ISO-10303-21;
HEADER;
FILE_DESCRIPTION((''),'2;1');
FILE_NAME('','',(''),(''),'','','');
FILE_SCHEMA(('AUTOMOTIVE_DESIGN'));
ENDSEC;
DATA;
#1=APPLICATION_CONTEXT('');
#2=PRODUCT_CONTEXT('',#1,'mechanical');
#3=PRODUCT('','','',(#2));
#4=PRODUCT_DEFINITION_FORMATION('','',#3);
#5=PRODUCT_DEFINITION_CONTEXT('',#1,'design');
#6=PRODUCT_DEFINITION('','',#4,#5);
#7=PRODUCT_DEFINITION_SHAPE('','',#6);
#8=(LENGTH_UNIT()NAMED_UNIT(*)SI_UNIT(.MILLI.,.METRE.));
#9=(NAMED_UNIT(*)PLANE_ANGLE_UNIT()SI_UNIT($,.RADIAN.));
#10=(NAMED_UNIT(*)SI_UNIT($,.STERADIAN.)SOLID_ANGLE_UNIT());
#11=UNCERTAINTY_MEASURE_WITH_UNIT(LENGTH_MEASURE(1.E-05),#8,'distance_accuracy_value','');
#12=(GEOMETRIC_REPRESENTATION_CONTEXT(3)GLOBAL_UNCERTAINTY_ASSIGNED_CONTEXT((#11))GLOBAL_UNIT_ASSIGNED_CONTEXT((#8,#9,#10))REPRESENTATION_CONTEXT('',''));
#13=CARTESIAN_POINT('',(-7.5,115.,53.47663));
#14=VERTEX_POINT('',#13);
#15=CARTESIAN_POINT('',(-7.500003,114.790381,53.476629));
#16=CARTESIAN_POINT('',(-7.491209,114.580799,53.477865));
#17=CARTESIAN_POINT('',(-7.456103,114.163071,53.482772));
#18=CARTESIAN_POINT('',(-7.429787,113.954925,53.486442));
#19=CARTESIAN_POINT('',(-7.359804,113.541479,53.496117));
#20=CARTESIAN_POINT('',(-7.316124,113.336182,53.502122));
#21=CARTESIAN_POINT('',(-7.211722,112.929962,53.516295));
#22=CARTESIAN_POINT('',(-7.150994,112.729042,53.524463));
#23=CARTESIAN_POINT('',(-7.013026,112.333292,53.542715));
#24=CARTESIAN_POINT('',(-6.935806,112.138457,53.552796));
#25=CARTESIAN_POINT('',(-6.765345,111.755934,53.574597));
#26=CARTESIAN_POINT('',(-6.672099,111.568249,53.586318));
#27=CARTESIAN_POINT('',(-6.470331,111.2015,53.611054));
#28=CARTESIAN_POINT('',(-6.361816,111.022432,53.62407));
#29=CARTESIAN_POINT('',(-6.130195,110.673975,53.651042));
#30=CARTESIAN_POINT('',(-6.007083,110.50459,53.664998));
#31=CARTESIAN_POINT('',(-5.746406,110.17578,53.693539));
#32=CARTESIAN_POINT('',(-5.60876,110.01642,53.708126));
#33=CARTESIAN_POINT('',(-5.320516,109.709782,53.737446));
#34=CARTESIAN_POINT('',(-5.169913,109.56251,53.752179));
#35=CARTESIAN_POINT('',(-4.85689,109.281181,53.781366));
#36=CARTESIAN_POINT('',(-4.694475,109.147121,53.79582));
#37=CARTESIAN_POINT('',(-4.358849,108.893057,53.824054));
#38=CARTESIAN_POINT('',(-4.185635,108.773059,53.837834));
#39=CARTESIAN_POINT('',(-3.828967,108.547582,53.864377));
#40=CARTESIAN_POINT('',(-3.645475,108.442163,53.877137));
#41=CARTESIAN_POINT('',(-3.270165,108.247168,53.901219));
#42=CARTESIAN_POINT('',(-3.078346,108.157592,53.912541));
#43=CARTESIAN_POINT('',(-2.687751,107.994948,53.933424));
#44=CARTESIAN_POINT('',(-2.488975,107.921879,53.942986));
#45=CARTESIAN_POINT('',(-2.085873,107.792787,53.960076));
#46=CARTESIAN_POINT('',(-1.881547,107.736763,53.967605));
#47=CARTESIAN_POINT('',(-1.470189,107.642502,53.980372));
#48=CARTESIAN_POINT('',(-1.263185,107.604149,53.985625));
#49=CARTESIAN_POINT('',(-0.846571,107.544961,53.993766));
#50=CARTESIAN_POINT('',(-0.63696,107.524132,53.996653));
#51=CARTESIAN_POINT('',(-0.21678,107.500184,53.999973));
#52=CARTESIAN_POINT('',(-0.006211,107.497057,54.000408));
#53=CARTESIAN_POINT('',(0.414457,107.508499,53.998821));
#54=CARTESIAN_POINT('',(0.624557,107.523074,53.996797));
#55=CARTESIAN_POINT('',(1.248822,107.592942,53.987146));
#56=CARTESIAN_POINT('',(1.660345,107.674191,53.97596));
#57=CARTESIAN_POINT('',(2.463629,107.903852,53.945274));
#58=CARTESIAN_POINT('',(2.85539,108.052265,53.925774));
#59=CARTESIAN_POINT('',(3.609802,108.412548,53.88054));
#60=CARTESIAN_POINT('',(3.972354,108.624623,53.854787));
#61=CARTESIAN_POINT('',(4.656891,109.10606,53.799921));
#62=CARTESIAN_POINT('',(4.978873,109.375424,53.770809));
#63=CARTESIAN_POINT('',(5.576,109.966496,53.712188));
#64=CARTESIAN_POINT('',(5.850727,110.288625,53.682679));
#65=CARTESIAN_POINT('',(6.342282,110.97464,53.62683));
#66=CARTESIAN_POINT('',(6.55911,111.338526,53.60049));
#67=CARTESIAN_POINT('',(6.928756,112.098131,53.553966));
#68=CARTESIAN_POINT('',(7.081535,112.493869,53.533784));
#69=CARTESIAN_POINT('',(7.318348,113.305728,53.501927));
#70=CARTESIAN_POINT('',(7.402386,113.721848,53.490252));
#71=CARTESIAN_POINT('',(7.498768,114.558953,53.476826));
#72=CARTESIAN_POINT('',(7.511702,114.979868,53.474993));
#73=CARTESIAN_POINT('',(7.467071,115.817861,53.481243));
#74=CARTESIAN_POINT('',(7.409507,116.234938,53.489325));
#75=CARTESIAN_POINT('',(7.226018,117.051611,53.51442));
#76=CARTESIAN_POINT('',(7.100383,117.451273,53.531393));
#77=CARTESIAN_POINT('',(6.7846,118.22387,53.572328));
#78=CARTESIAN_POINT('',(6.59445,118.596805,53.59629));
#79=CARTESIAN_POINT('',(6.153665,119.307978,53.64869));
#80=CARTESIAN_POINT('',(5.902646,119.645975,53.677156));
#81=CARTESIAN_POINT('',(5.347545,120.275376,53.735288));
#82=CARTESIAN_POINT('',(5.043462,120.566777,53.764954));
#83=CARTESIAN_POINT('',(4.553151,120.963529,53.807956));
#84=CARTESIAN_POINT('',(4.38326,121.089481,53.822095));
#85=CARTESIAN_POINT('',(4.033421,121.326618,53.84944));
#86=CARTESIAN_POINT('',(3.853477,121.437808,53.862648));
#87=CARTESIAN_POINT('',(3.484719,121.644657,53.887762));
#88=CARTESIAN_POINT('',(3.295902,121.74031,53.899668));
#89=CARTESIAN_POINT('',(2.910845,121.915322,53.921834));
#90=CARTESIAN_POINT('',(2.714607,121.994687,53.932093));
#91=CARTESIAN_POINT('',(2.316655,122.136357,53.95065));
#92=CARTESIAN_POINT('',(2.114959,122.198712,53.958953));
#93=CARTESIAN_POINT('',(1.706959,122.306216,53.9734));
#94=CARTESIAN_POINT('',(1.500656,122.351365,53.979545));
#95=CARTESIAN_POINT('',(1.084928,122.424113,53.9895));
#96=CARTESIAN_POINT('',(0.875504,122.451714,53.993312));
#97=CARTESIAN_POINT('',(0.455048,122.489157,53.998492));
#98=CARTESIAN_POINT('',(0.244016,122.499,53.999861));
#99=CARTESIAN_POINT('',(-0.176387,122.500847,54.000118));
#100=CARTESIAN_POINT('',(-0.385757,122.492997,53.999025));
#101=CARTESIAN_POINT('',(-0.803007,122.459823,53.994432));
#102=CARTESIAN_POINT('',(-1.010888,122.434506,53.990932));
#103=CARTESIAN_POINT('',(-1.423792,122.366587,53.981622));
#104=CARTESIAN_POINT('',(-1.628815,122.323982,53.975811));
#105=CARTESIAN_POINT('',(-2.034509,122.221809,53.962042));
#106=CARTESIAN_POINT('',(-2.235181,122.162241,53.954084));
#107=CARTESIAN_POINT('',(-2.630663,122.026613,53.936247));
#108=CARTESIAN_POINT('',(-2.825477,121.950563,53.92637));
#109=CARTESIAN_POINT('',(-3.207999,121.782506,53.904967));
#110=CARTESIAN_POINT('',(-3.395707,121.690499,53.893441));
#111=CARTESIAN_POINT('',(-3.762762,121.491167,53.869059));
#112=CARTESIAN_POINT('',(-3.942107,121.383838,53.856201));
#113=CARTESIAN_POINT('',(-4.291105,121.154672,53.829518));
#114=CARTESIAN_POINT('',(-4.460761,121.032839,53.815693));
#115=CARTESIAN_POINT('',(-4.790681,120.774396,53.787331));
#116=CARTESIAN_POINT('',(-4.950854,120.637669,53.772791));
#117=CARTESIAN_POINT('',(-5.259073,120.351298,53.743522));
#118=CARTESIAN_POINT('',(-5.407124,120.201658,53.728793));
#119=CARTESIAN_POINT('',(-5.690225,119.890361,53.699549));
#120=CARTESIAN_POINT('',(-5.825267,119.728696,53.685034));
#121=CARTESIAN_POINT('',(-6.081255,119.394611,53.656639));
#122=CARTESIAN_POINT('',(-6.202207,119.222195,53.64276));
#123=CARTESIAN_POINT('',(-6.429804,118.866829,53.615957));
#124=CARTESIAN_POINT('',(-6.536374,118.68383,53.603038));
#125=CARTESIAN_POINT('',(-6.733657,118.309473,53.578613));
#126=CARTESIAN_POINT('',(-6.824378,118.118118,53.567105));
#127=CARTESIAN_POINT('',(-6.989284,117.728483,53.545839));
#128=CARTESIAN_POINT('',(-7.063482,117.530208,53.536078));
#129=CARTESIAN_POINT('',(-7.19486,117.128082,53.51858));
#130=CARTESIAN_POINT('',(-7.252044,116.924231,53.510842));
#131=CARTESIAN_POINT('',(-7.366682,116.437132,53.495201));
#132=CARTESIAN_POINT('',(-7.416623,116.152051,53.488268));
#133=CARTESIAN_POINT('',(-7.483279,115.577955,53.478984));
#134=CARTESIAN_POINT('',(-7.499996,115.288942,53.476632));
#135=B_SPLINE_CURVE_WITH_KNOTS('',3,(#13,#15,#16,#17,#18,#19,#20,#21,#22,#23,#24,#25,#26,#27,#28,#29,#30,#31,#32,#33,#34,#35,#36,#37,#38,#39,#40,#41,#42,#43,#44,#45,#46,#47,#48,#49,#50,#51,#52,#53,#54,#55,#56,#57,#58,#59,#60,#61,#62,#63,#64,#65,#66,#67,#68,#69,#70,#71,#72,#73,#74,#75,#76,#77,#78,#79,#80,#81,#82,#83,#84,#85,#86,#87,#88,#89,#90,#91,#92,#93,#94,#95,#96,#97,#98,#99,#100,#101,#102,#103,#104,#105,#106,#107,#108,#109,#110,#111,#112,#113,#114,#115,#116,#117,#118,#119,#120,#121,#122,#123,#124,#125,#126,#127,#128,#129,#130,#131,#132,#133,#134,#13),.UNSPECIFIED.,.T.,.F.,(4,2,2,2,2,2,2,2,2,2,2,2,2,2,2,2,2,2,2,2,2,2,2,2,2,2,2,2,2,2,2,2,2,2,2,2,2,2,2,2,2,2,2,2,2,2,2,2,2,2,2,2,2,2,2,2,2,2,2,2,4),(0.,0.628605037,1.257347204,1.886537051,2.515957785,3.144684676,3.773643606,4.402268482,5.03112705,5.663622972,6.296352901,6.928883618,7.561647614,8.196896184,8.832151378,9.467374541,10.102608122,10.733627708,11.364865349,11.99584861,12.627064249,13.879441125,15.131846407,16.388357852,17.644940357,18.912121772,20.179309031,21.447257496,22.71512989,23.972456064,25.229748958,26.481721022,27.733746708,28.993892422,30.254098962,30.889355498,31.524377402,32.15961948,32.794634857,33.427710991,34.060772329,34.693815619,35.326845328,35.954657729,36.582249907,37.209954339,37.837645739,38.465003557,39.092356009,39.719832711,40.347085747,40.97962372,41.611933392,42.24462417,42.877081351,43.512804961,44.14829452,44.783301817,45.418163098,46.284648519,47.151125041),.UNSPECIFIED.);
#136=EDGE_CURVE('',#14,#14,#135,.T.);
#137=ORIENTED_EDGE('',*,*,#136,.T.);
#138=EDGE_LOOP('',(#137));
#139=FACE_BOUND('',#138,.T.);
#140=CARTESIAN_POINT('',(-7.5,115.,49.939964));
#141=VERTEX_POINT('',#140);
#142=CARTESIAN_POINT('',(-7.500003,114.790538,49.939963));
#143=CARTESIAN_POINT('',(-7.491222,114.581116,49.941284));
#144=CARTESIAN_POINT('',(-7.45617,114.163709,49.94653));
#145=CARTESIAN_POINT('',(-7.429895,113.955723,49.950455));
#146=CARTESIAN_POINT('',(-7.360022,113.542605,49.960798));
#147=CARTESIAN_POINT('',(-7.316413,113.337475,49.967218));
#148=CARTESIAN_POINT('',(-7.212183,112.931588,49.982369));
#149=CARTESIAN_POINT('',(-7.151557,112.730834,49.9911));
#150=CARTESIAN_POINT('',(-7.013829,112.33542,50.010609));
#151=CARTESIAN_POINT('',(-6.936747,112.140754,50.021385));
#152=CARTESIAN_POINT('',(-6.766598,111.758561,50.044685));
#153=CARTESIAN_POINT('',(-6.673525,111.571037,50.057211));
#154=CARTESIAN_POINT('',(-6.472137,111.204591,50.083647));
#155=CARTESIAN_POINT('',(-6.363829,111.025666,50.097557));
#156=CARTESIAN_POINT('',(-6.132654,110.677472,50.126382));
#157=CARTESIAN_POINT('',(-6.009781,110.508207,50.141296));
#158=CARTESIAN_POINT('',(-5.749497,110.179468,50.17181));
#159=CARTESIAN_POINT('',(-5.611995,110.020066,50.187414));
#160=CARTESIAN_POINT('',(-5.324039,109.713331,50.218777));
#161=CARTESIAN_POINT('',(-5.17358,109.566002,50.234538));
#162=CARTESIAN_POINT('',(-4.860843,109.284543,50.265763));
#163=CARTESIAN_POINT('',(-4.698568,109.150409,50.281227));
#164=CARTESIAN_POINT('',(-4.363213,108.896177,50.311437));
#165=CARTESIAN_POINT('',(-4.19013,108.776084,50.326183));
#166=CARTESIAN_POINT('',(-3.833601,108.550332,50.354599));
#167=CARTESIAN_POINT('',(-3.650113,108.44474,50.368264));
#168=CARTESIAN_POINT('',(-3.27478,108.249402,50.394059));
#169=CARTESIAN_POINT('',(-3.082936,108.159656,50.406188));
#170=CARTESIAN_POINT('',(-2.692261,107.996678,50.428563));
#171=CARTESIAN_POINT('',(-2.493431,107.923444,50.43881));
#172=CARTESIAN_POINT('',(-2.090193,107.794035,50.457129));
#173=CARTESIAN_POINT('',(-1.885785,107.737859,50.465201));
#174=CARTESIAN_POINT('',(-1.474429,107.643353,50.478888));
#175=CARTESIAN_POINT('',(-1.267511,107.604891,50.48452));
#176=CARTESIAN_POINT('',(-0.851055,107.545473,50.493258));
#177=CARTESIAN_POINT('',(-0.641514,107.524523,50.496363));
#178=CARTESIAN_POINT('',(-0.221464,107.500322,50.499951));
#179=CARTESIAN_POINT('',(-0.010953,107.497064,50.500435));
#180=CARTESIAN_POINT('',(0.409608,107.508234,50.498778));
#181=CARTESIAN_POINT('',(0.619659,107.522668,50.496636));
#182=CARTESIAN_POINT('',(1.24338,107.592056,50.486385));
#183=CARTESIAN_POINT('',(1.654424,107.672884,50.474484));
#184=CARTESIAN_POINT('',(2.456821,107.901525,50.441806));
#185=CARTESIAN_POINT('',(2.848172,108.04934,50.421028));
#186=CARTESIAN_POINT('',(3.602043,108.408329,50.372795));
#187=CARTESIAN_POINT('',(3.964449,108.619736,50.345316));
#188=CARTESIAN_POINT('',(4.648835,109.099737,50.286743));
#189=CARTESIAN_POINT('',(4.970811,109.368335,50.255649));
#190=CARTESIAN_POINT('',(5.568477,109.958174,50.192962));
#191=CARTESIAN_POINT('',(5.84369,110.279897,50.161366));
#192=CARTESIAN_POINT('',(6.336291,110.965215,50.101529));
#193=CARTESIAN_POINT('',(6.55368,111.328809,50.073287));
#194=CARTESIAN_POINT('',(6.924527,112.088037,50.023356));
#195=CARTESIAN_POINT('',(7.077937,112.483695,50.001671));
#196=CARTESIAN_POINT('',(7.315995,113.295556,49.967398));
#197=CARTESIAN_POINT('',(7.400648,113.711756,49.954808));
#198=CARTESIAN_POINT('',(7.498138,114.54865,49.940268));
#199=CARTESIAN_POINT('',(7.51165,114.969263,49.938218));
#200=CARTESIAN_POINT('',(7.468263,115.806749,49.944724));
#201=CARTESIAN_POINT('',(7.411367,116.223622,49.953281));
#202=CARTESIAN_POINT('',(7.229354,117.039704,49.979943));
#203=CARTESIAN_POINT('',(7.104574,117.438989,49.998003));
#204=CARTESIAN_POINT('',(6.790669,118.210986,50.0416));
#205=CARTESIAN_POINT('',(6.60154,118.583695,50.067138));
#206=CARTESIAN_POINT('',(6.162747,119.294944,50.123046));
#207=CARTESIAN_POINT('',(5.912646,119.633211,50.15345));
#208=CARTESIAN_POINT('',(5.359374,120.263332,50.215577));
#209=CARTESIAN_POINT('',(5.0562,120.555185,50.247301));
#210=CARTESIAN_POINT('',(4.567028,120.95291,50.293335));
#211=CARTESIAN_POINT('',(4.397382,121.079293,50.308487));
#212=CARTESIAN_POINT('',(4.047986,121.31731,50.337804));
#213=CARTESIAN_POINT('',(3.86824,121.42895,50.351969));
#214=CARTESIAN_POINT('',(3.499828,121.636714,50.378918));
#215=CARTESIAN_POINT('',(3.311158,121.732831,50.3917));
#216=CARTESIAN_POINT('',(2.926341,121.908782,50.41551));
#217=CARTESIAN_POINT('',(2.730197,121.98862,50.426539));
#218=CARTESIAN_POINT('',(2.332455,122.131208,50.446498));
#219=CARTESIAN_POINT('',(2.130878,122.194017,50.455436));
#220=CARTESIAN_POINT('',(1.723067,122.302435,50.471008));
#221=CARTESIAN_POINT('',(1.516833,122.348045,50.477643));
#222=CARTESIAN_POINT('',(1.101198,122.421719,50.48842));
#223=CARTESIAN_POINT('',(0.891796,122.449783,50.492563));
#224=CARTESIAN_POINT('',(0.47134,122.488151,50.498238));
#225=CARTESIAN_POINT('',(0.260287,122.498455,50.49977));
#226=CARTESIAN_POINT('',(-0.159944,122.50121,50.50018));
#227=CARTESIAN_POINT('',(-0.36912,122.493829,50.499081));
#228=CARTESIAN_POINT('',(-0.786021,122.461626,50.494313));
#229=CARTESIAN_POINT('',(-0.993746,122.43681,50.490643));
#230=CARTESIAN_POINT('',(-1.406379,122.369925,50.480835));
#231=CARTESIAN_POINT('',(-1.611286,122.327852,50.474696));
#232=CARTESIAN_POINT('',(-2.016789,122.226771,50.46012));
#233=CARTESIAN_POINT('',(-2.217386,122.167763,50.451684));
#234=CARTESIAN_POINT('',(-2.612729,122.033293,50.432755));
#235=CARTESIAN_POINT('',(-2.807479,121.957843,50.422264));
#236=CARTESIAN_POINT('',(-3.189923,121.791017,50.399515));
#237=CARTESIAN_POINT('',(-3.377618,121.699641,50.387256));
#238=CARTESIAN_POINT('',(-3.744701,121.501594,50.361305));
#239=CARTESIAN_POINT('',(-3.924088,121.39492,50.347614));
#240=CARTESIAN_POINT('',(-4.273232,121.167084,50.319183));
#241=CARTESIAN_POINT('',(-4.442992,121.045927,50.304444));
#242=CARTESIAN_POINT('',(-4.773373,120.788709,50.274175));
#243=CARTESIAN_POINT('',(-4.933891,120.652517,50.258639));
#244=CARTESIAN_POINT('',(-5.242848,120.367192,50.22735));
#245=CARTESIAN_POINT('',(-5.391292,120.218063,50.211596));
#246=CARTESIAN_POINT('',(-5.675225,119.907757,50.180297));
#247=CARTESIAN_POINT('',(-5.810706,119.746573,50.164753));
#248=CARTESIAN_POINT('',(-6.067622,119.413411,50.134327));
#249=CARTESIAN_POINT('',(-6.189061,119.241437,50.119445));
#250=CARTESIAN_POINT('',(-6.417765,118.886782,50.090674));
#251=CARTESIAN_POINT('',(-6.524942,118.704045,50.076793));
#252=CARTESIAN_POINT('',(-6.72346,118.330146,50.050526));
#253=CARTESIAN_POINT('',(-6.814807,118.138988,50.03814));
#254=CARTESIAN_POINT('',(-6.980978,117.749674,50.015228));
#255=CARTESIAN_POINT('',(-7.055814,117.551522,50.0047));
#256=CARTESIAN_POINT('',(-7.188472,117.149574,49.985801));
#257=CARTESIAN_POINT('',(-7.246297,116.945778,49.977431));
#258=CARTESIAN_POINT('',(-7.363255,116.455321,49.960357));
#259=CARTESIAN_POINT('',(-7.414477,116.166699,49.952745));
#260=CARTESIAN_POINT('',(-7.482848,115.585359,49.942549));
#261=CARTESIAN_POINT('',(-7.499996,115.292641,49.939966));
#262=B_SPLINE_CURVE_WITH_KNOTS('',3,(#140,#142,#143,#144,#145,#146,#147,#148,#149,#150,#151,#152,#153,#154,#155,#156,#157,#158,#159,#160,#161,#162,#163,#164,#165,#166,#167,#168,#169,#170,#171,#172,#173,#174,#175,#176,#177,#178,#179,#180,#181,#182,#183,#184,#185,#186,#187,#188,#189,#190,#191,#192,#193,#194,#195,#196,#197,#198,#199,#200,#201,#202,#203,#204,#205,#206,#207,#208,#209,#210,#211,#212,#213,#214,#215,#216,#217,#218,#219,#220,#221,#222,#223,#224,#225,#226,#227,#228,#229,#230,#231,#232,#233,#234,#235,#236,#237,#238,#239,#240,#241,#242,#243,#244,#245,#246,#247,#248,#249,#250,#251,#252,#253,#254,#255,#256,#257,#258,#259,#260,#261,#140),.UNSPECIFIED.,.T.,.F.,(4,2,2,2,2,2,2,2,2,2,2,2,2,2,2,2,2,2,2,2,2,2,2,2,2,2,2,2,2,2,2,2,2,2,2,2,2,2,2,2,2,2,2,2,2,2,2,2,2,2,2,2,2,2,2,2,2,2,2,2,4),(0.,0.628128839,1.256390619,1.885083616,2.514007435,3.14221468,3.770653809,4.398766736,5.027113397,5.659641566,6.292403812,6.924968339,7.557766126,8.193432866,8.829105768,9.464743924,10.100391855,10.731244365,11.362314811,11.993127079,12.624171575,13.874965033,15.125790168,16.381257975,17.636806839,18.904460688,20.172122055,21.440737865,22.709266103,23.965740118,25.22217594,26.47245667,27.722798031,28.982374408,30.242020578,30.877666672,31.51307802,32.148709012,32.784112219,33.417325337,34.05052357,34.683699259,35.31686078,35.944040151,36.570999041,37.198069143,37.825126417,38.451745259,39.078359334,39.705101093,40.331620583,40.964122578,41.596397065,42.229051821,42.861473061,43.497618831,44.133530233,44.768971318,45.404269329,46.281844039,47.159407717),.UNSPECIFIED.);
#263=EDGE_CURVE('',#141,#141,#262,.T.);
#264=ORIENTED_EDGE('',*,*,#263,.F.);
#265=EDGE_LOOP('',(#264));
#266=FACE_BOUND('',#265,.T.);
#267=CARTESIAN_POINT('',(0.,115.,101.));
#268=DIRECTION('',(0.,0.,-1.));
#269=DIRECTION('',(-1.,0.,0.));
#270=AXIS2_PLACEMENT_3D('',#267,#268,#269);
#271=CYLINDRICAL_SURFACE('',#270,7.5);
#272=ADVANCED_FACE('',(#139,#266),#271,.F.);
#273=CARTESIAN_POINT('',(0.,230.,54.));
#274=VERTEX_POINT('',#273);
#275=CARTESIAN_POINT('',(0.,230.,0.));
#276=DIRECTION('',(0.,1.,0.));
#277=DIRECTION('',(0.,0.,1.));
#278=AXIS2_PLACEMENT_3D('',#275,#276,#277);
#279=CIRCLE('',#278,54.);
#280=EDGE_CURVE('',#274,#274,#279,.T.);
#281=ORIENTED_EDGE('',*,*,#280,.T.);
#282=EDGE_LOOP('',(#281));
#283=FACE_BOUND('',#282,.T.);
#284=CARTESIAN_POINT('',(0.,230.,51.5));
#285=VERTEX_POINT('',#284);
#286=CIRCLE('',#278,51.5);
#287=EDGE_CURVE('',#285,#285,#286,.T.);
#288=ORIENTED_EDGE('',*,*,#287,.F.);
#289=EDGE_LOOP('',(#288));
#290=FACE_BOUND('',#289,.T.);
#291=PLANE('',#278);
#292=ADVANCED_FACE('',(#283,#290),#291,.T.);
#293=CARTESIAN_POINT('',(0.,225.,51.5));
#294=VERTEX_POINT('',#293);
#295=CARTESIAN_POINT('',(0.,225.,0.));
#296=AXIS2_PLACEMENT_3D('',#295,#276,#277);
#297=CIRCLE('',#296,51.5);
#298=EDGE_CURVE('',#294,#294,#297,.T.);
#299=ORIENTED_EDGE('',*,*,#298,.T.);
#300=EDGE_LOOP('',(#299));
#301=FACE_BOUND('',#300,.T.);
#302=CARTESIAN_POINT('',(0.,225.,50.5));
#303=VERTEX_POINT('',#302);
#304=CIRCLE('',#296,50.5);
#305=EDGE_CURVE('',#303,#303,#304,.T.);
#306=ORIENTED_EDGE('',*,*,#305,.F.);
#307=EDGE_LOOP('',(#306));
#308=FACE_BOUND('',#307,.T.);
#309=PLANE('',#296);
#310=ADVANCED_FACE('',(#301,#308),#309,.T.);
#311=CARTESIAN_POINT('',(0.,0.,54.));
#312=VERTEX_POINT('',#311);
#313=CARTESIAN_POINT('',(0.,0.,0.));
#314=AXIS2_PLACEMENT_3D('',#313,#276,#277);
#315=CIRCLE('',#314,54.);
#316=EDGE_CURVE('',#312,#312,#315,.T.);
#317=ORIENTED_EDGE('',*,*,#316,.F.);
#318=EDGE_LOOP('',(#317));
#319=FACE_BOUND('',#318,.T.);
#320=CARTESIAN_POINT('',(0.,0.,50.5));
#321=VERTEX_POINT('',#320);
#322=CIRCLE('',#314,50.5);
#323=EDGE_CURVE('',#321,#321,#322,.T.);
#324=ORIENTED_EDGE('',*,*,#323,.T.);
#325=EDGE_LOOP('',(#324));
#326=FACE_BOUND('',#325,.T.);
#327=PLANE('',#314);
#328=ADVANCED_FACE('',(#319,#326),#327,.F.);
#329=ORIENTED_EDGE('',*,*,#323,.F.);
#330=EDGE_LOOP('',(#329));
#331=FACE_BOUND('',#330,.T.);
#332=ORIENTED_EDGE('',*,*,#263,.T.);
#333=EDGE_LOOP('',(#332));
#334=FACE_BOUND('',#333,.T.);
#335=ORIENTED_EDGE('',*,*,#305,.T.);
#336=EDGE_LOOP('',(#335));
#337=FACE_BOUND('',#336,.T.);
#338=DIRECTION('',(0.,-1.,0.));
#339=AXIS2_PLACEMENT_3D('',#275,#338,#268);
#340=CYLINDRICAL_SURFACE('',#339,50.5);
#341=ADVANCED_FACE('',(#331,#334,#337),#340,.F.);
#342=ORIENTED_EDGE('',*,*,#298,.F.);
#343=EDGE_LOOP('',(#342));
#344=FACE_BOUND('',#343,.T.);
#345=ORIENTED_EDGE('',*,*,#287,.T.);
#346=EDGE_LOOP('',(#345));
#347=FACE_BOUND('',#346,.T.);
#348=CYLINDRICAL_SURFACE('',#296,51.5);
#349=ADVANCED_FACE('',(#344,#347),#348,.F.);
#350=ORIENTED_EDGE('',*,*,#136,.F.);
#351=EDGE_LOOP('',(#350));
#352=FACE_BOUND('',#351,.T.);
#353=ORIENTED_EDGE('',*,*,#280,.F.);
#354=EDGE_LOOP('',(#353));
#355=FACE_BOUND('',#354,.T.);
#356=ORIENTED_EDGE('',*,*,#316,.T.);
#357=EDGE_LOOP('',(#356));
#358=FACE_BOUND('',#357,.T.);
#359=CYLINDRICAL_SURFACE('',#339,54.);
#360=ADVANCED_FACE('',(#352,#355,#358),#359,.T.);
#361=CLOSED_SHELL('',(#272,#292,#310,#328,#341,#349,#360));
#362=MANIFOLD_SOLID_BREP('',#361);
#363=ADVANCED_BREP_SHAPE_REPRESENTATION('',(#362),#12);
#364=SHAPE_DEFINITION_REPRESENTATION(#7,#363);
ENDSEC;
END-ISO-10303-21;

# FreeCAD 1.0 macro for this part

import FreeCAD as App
import Part
import Sketcher
from FreeCAD import Vector
Q = App.Units.Quantity

doc = App.newDocument("Part")
body = doc.addObject("PartDesign::Body", "Body")

sketch1 = body.newObject("Sketcher::SketchObject", "Sketch")
sketch1.AttachmentSupport = (doc.getObject("XZ_Plane"), [""])
sketch1.MapMode = "FlatFace"
sketch1.addGeometry(Part.Circle(Vector(0, 0, 0), Vector(0, 0, 1), 54), False)
sketch1.addGeometry(Part.Circle(Vector(0, 0, 0), Vector(0, 0, 1), 50.5), False)
sketch1.addConstraint(Sketcher.Constraint("Coincident", 0, 3, -1, 1))
sketch1.addConstraint(Sketcher.Constraint("Coincident", 1, 3, -1, 1))
sketch1.addConstraint(Sketcher.Constraint("Diameter", 0, Q("108 mm")))
sketch1.addConstraint(Sketcher.Constraint("Diameter", 1, Q("101 mm")))
pad1 = body.newObject("PartDesign::Pad", "Pad")
pad1.Profile = sketch1
pad1.Length = 230
pad1.Reversed = True

sketch2 = body.newObject("Sketcher::SketchObject", "Sketch001")
sketch2.AttachmentSupport = (doc.getObject("XZ_Plane"), [""])
sketch2.MapMode = "FlatFace"
sketch2.AttachmentOffset = App.Placement(Vector(0, 0, -230), App.Rotation())
sketch2.addGeometry(Part.Circle(Vector(0, 0, 0), Vector(0, 0, 1), 51.5), False)
sketch2.addConstraint(Sketcher.Constraint("Coincident", 0, 3, -1, 1))
sketch2.addConstraint(Sketcher.Constraint("Diameter", 0, Q("103 mm")))
pocket1 = body.newObject("PartDesign::Pocket", "Pocket")
pocket1.Profile = sketch2
pocket1.Length = 5
pocket1.Reversed = True

sketch3 = body.newObject("Sketcher::SketchObject", "Sketch002")
sketch3.AttachmentSupport = (doc.getObject("XY_Plane"), [""])
sketch3.MapMode = "FlatFace"
sketch3.addGeometry(Part.Circle(Vector(0, 115, 0), Vector(0, 0, 1), 7.5), False)
sketch3.addConstraint(Sketcher.Constraint("PointOnObject", 0, 3, -2))
sketch3.addConstraint(Sketcher.Constraint("Diameter", 0, Q("15 mm")))
sketch3.addConstraint(Sketcher.Constraint("DistanceY", -1, 1, 0, 3, Q("115 mm")))
pocket2 = body.newObject("PartDesign::Pocket", "Pocket001")
pocket2.Profile = sketch3
pocket2.Length = 101
pocket2.Reversed = True

doc.recompute()
